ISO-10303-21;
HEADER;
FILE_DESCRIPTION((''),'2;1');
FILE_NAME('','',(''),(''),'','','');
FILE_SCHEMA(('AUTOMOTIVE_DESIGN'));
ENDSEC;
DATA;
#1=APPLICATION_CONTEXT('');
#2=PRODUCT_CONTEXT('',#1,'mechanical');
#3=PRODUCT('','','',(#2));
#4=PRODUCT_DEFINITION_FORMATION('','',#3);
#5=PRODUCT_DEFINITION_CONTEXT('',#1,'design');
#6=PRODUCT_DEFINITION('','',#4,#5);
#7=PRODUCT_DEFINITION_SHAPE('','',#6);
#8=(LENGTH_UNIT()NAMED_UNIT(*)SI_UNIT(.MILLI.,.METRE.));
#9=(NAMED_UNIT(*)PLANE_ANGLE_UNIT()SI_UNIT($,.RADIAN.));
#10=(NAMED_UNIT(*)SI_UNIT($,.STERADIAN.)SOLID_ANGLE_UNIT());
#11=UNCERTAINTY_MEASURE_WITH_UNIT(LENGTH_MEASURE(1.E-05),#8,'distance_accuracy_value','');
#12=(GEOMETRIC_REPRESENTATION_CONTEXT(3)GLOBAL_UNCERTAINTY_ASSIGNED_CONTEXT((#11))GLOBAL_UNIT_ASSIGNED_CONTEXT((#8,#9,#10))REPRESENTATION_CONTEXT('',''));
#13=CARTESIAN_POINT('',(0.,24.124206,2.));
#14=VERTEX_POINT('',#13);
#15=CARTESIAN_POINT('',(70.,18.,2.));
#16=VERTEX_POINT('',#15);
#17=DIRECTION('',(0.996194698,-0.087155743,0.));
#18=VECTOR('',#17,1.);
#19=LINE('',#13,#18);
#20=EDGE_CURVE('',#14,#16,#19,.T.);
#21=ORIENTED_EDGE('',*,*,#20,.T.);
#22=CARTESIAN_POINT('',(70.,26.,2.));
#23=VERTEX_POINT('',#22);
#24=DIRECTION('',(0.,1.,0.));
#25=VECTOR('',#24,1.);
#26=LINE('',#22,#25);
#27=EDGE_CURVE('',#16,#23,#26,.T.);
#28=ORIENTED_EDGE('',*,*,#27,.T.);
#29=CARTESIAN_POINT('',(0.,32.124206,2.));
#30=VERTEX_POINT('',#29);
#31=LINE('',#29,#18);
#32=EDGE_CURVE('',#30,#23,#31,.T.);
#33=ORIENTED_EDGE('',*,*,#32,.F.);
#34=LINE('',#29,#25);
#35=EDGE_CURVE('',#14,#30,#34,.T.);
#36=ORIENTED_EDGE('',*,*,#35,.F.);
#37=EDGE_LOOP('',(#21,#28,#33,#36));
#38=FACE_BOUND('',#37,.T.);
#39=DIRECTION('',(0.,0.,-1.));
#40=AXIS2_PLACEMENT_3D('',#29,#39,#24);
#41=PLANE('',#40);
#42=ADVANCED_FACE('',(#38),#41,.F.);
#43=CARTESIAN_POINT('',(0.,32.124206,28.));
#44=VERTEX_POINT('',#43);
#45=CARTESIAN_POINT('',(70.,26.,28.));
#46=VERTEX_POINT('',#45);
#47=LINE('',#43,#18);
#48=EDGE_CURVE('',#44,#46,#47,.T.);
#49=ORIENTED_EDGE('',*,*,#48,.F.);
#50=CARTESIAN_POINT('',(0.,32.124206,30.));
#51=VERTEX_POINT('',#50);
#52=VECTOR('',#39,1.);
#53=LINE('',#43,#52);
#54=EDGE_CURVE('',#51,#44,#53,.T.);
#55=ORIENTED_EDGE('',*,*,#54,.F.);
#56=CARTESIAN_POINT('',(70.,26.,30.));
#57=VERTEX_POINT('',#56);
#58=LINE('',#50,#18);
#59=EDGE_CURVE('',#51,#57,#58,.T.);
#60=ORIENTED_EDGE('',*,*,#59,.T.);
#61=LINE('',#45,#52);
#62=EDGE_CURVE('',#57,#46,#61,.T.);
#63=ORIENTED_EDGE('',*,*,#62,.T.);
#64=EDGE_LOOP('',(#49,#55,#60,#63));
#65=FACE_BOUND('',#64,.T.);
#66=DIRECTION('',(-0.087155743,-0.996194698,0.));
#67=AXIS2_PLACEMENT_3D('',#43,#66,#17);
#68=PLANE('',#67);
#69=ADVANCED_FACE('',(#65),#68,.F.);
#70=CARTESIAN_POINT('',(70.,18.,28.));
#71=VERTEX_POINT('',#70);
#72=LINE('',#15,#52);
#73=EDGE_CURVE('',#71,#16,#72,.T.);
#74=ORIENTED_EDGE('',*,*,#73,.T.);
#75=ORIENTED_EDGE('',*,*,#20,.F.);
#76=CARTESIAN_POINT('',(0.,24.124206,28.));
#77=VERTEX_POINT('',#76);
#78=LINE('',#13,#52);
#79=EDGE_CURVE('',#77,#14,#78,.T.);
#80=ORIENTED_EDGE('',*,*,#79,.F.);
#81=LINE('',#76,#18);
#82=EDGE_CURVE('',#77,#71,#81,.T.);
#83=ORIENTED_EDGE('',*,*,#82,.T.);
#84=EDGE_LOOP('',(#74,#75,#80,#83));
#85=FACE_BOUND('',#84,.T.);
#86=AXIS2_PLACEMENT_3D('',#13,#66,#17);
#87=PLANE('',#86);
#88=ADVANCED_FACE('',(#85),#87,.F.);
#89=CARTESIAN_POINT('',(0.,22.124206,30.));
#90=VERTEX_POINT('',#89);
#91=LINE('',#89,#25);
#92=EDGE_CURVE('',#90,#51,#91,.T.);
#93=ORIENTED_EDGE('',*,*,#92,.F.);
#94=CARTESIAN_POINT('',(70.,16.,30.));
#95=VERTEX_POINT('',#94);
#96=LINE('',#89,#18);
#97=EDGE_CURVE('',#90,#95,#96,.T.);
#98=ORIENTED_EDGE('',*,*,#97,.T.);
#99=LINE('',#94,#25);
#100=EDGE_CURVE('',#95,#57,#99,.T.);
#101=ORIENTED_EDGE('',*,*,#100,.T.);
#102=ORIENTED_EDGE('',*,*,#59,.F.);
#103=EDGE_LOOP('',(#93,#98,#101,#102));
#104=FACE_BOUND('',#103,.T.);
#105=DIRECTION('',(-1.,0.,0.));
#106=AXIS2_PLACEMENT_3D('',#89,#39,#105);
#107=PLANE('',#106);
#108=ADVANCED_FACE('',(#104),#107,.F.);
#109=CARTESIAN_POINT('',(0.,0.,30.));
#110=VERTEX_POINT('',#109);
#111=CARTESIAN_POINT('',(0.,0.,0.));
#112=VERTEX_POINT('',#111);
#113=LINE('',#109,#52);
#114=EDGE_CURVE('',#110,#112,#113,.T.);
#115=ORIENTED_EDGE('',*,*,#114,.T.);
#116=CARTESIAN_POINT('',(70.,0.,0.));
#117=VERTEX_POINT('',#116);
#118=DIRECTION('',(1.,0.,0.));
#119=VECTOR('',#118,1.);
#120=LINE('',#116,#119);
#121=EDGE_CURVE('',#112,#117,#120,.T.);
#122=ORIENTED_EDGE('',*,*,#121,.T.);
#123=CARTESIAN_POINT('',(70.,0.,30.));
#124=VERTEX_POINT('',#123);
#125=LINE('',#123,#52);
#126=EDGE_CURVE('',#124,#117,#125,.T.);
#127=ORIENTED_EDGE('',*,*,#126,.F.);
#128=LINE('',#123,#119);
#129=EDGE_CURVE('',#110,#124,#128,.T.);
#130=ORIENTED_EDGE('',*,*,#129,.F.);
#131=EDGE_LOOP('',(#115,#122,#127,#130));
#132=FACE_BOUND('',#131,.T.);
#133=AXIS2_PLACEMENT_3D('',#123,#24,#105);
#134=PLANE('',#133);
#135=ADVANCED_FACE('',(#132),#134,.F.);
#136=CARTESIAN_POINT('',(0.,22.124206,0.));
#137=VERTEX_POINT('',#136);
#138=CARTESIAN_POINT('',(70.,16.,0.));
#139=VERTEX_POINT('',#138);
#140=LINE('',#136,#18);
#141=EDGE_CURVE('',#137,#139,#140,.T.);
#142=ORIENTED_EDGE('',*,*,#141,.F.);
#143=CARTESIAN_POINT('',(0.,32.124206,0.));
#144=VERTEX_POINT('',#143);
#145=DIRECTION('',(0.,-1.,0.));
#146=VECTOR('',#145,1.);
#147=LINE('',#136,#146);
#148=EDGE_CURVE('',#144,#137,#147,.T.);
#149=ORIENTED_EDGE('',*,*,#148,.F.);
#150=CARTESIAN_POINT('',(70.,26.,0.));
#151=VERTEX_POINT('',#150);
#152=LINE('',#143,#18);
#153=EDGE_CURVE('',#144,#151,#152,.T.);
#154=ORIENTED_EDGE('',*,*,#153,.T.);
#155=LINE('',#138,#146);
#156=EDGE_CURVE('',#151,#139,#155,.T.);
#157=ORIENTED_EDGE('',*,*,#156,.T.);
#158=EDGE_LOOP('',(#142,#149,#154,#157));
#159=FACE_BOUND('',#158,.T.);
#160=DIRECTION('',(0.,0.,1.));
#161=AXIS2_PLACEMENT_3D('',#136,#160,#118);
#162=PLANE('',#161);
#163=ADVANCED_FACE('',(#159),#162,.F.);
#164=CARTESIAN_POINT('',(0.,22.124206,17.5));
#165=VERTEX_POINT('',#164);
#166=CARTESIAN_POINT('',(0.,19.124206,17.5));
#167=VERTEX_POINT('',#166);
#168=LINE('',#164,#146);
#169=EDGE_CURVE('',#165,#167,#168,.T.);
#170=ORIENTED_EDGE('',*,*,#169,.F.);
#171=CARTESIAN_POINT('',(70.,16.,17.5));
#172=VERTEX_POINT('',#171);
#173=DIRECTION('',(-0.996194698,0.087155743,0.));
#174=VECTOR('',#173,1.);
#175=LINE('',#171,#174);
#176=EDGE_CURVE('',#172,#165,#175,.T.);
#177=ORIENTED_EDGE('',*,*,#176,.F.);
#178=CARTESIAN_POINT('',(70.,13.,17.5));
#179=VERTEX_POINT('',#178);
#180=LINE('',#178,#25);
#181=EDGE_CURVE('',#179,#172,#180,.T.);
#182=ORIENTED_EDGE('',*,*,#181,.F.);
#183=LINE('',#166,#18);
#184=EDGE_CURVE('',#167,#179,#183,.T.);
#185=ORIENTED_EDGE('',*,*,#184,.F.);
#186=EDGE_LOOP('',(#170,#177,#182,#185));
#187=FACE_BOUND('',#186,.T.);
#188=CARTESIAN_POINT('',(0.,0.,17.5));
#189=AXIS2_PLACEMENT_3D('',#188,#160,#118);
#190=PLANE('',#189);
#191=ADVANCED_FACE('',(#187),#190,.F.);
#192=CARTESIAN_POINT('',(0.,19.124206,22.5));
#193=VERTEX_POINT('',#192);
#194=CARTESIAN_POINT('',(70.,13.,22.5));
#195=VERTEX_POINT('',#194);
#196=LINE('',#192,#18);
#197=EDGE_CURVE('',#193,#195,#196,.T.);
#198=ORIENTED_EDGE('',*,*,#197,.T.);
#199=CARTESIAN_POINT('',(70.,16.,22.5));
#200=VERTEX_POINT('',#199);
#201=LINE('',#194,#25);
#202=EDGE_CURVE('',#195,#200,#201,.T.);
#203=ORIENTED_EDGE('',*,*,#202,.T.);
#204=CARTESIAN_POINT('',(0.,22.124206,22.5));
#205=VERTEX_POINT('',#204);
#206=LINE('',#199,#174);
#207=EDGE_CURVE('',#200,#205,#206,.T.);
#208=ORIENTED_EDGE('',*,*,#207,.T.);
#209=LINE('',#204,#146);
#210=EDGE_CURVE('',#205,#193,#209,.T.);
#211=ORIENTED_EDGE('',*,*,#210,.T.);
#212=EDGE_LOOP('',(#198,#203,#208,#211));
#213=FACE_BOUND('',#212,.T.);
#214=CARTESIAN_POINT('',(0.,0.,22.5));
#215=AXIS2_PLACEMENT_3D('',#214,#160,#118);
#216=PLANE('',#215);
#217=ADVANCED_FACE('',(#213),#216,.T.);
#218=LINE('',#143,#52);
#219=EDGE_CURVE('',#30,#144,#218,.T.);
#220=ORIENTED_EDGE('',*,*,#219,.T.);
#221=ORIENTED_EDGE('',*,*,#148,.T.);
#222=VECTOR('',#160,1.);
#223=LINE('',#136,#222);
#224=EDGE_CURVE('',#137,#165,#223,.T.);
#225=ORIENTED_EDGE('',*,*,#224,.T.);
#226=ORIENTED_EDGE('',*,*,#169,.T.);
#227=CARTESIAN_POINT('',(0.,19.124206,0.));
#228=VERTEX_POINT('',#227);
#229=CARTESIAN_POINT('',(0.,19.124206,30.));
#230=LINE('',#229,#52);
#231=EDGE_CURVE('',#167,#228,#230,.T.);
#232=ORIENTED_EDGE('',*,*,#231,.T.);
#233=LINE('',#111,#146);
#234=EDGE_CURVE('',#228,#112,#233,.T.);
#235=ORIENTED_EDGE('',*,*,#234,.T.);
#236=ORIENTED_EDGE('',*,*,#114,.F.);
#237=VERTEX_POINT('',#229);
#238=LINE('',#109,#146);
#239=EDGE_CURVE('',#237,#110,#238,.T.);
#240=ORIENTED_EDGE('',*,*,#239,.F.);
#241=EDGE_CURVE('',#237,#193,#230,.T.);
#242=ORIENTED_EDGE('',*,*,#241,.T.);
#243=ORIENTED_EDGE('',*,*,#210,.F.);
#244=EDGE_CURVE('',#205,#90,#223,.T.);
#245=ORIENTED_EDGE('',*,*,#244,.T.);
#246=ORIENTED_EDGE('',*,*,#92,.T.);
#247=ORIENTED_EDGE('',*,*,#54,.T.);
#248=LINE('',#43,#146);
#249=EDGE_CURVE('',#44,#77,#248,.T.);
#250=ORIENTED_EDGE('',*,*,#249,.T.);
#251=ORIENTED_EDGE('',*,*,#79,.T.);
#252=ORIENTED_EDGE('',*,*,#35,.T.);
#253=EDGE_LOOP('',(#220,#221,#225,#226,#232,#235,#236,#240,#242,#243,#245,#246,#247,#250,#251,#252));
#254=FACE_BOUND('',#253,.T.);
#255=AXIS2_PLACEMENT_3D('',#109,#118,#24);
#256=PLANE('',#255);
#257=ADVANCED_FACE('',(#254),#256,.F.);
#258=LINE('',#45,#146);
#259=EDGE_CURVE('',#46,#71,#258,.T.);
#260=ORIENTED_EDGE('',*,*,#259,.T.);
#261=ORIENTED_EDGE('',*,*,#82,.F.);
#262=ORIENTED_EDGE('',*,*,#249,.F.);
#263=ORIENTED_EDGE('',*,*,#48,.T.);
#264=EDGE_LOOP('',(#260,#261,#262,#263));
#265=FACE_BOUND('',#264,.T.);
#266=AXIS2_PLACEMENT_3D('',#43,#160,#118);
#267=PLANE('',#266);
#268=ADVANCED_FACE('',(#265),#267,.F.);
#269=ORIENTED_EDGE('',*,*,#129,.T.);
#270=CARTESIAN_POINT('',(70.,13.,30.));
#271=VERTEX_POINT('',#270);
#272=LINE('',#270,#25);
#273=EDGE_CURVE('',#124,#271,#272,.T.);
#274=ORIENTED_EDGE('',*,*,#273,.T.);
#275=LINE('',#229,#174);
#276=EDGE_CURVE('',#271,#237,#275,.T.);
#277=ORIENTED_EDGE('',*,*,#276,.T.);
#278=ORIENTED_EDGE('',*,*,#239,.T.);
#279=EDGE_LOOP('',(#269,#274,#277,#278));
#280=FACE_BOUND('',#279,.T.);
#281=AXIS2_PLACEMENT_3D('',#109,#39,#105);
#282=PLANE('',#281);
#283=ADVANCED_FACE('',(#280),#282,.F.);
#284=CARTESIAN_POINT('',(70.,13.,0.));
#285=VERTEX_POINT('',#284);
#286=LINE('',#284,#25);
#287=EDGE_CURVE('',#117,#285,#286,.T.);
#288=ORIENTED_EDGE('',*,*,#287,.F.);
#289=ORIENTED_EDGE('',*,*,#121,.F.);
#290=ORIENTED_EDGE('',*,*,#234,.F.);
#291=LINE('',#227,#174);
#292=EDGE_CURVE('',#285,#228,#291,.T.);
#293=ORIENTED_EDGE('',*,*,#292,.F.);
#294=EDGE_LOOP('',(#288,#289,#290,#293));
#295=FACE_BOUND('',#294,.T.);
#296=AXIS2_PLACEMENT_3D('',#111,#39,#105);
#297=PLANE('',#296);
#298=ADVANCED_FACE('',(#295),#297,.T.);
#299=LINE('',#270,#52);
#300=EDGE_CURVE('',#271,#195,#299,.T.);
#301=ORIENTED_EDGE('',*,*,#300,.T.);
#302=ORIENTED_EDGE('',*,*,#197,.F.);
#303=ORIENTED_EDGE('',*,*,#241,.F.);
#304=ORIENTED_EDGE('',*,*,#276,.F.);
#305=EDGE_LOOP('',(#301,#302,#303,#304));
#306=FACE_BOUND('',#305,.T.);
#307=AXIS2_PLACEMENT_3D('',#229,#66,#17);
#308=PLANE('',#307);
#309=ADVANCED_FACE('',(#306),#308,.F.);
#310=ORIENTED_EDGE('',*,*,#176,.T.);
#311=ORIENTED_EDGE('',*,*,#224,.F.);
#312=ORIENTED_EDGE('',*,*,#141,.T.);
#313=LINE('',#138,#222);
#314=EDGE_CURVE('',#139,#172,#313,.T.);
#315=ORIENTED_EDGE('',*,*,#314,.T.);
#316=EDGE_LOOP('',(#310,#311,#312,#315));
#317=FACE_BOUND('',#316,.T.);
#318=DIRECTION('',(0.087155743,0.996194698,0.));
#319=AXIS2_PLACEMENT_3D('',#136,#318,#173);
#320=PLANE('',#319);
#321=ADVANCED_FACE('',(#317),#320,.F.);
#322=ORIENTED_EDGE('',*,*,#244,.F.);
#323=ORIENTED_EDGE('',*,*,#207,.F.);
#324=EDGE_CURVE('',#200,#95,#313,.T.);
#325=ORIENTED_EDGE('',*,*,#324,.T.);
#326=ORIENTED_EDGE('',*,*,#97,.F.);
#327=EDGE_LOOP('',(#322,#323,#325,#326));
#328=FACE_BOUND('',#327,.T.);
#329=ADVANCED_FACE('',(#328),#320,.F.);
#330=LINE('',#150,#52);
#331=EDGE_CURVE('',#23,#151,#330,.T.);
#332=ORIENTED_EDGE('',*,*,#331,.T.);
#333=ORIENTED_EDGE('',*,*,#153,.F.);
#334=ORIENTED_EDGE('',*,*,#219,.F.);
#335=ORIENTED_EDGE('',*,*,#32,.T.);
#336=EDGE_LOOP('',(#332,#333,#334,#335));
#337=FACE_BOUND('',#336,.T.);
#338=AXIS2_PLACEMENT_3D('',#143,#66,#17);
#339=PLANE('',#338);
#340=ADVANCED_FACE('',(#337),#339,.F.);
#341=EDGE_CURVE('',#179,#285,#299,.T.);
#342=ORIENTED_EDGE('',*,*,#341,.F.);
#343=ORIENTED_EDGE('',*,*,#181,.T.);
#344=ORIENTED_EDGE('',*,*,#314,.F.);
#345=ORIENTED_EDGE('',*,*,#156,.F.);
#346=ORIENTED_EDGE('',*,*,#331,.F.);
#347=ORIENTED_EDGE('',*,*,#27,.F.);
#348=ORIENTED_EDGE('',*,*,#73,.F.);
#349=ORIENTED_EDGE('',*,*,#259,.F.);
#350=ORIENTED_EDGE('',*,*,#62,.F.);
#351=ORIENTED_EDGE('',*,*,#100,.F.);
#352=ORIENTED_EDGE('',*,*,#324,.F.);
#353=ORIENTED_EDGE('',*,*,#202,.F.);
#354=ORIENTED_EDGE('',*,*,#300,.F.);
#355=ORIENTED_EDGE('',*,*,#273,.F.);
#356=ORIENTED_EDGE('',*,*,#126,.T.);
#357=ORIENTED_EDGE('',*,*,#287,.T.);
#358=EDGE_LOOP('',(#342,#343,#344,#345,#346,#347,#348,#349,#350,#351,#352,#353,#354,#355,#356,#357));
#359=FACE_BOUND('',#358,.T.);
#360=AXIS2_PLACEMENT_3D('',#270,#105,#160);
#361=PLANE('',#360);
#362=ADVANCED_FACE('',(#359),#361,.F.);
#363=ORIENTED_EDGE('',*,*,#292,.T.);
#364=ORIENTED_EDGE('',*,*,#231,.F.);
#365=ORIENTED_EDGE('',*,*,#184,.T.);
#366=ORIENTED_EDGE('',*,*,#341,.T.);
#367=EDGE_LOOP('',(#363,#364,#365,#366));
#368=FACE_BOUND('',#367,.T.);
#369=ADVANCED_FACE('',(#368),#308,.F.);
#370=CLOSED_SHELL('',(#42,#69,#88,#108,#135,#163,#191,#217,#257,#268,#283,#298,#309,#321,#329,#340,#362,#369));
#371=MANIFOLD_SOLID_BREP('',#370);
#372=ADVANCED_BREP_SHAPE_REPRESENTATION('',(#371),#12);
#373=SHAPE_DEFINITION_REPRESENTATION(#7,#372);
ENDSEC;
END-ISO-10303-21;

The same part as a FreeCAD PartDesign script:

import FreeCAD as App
import Part
import Sketcher
Q = App.Units.Quantity


def add_polygon(sketch, points):
    """Adds a closed chain of lines whose ends are joined by coincident constraints."""
    first, n = sketch.GeometryCount, len(points)
    for a, b in zip(points, points[1:] + points[:1]):
        sketch.addGeometry(Part.LineSegment(App.Vector(*a, 0), App.Vector(*b, 0)), False)
    for i in range(n):
        sketch.addConstraint(Sketcher.Constraint("Coincident", first + i, 2, first + (i + 1) % n, 1))

doc = App.newDocument("Part")
body = doc.addObject("PartDesign::Body", "Body")

sketch1 = body.newObject("Sketcher::SketchObject", "Sketch")
sketch1.AttachmentSupport = (doc.getObject("XY_Plane"), [""])
sketch1.MapMode = "FlatFace"
add_polygon(sketch1, [(0, 19.124206), (0, 0), (70, 0), (70, 13)])
sketch1.addConstraint(Sketcher.Constraint("Vertical", 0))
sketch1.addConstraint(Sketcher.Constraint("Horizontal", 1))
sketch1.addConstraint(Sketcher.Constraint("Vertical", 2))
sketch1.addConstraint(Sketcher.Constraint("Coincident", 0, 2, -1, 1))
sketch1.addConstraint(Sketcher.Constraint("DistanceX", 1, 1, 1, 2, Q("70 mm")))
sketch1.addConstraint(Sketcher.Constraint("DistanceY", 2, 1, 2, 2, Q("13 mm")))
sketch1.addConstraint(Sketcher.Constraint("Angle", 3, Q("175 deg")))
pad1 = body.newObject("PartDesign::Pad", "Pad")
pad1.Profile = sketch1
pad1.Length = 30

sketch2 = body.newObject("Sketcher::SketchObject", "Sketch001")
sketch2.AttachmentSupport = (doc.getObject("XY_Plane"), [""])
sketch2.MapMode = "FlatFace"
sketch2.AttachmentOffset = App.Placement(App.Vector(0, 0, 20), App.Rotation())
add_polygon(sketch2, [(0, 19.124206), (70, 13), (70, 16), (0, 22.124206)])
sketch2.addConstraint(Sketcher.Constraint("Vertical", 1))
sketch2.addConstraint(Sketcher.Constraint("Vertical", 3))
sketch2.addConstraint(Sketcher.Constraint("PointOnObject", 2, 2, -2))
sketch2.addConstraint(Sketcher.Constraint("Parallel", 0, 2))
sketch2.addConstraint(Sketcher.Constraint("DistanceY", 1, 1, 1, 2, Q("3 mm")))
sketch2.addConstraint(Sketcher.Constraint("Angle", 0, Q("-5 deg")))
sketch2.addConstraint(Sketcher.Constraint("DistanceX", -1, 1, 0, 2, Q("70 mm")))
sketch2.addConstraint(Sketcher.Constraint("DistanceY", -1, 1, 0, 2, Q("13 mm")))
pad2 = body.newObject("PartDesign::Pad", "Pad001")
pad2.Profile = sketch2
pad2.Length = 5
pad2.Midplane = True

sketch3 = body.newObject("Sketcher::SketchObject", "Sketch002")
sketch3.AttachmentSupport = (doc.getObject("YZ_Plane"), [""])
sketch3.MapMode = "FlatFace"
add_polygon(sketch3, [(32.124206, 30), (32.124206, 28), (24.124206, 28), (24.124206, 2), (32.124206, 2), (32.124206, 0), (22.124206, 0), (22.124206, 30)])
sketch3.addConstraint(Sketcher.Constraint("Vertical", 0))
sketch3.addConstraint(Sketcher.Constraint("Horizontal", 1))
sketch3.addConstraint(Sketcher.Constraint("Vertical", 2))
sketch3.addConstraint(Sketcher.Constraint("Horizontal", 3))
sketch3.addConstraint(Sketcher.Constraint("Vertical", 4))
sketch3.addConstraint(Sketcher.Constraint("Horizontal", 5))
sketch3.addConstraint(Sketcher.Constraint("Vertical", 6))
sketch3.addConstraint(Sketcher.Constraint("Horizontal", 7))
sketch3.addConstraint(Sketcher.Constraint("PointOnObject", 4, 2, -1))
sketch3.addConstraint(Sketcher.Constraint("Vertical", 0, 2, 3, 2))
sketch3.addConstraint(Sketcher.Constraint("Equal", 0, 4))
sketch3.addConstraint(Sketcher.Constraint("DistanceX", 1, 2, 1, 1, Q("8 mm")))
sketch3.addConstraint(Sketcher.Constraint("DistanceX", 5, 2, 5, 1, Q("10 mm")))
sketch3.addConstraint(Sketcher.Constraint("DistanceY", 0, 2, 0, 1, Q("2 mm")))
sketch3.addConstraint(Sketcher.Constraint("DistanceY", 2, 2, 2, 1, Q("26 mm")))
sketch3.addConstraint(Sketcher.Constraint("DistanceX", -1, 1, 0, 2, Q("32.124206 mm")))

sketch4 = body.newObject("Sketcher::SketchObject", "Sketch003")
sketch4.Placement = App.Placement(App.Vector(1.920914, 21.956148, 0), App.Rotation(App.Vector(0.996194698, -0.087155743, 0), App.Vector(0, 0, 1), App.Vector(-0.087155743, -0.996194698, 0), "ZXY"))
sketch4.addGeometry(Part.LineSegment(App.Vector(-1.928252, 20, 0), App.Vector(68.339137, 20, 0)), False)
sketch4.addConstraint(Sketcher.Constraint("Horizontal", 0))
sketch4.addConstraint(Sketcher.Constraint("DistanceY", -1, 1, 0, 1, Q("20 mm")))
sketch4.addConstraint(Sketcher.Constraint("DistanceX", 0, 1, 0, 2, Q("70.267389 mm")))
sketch4.addConstraint(Sketcher.Constraint("DistanceX", 0, 1, -1, 1, Q("1.928252 mm")))
doc.recompute()

additivepipe = body.newObject("PartDesign::AdditivePipe", "AdditivePipe")
additivepipe.Profile = sketch3
additivepipe.Spine = (sketch4, ["Edge1"])

doc.recompute()
